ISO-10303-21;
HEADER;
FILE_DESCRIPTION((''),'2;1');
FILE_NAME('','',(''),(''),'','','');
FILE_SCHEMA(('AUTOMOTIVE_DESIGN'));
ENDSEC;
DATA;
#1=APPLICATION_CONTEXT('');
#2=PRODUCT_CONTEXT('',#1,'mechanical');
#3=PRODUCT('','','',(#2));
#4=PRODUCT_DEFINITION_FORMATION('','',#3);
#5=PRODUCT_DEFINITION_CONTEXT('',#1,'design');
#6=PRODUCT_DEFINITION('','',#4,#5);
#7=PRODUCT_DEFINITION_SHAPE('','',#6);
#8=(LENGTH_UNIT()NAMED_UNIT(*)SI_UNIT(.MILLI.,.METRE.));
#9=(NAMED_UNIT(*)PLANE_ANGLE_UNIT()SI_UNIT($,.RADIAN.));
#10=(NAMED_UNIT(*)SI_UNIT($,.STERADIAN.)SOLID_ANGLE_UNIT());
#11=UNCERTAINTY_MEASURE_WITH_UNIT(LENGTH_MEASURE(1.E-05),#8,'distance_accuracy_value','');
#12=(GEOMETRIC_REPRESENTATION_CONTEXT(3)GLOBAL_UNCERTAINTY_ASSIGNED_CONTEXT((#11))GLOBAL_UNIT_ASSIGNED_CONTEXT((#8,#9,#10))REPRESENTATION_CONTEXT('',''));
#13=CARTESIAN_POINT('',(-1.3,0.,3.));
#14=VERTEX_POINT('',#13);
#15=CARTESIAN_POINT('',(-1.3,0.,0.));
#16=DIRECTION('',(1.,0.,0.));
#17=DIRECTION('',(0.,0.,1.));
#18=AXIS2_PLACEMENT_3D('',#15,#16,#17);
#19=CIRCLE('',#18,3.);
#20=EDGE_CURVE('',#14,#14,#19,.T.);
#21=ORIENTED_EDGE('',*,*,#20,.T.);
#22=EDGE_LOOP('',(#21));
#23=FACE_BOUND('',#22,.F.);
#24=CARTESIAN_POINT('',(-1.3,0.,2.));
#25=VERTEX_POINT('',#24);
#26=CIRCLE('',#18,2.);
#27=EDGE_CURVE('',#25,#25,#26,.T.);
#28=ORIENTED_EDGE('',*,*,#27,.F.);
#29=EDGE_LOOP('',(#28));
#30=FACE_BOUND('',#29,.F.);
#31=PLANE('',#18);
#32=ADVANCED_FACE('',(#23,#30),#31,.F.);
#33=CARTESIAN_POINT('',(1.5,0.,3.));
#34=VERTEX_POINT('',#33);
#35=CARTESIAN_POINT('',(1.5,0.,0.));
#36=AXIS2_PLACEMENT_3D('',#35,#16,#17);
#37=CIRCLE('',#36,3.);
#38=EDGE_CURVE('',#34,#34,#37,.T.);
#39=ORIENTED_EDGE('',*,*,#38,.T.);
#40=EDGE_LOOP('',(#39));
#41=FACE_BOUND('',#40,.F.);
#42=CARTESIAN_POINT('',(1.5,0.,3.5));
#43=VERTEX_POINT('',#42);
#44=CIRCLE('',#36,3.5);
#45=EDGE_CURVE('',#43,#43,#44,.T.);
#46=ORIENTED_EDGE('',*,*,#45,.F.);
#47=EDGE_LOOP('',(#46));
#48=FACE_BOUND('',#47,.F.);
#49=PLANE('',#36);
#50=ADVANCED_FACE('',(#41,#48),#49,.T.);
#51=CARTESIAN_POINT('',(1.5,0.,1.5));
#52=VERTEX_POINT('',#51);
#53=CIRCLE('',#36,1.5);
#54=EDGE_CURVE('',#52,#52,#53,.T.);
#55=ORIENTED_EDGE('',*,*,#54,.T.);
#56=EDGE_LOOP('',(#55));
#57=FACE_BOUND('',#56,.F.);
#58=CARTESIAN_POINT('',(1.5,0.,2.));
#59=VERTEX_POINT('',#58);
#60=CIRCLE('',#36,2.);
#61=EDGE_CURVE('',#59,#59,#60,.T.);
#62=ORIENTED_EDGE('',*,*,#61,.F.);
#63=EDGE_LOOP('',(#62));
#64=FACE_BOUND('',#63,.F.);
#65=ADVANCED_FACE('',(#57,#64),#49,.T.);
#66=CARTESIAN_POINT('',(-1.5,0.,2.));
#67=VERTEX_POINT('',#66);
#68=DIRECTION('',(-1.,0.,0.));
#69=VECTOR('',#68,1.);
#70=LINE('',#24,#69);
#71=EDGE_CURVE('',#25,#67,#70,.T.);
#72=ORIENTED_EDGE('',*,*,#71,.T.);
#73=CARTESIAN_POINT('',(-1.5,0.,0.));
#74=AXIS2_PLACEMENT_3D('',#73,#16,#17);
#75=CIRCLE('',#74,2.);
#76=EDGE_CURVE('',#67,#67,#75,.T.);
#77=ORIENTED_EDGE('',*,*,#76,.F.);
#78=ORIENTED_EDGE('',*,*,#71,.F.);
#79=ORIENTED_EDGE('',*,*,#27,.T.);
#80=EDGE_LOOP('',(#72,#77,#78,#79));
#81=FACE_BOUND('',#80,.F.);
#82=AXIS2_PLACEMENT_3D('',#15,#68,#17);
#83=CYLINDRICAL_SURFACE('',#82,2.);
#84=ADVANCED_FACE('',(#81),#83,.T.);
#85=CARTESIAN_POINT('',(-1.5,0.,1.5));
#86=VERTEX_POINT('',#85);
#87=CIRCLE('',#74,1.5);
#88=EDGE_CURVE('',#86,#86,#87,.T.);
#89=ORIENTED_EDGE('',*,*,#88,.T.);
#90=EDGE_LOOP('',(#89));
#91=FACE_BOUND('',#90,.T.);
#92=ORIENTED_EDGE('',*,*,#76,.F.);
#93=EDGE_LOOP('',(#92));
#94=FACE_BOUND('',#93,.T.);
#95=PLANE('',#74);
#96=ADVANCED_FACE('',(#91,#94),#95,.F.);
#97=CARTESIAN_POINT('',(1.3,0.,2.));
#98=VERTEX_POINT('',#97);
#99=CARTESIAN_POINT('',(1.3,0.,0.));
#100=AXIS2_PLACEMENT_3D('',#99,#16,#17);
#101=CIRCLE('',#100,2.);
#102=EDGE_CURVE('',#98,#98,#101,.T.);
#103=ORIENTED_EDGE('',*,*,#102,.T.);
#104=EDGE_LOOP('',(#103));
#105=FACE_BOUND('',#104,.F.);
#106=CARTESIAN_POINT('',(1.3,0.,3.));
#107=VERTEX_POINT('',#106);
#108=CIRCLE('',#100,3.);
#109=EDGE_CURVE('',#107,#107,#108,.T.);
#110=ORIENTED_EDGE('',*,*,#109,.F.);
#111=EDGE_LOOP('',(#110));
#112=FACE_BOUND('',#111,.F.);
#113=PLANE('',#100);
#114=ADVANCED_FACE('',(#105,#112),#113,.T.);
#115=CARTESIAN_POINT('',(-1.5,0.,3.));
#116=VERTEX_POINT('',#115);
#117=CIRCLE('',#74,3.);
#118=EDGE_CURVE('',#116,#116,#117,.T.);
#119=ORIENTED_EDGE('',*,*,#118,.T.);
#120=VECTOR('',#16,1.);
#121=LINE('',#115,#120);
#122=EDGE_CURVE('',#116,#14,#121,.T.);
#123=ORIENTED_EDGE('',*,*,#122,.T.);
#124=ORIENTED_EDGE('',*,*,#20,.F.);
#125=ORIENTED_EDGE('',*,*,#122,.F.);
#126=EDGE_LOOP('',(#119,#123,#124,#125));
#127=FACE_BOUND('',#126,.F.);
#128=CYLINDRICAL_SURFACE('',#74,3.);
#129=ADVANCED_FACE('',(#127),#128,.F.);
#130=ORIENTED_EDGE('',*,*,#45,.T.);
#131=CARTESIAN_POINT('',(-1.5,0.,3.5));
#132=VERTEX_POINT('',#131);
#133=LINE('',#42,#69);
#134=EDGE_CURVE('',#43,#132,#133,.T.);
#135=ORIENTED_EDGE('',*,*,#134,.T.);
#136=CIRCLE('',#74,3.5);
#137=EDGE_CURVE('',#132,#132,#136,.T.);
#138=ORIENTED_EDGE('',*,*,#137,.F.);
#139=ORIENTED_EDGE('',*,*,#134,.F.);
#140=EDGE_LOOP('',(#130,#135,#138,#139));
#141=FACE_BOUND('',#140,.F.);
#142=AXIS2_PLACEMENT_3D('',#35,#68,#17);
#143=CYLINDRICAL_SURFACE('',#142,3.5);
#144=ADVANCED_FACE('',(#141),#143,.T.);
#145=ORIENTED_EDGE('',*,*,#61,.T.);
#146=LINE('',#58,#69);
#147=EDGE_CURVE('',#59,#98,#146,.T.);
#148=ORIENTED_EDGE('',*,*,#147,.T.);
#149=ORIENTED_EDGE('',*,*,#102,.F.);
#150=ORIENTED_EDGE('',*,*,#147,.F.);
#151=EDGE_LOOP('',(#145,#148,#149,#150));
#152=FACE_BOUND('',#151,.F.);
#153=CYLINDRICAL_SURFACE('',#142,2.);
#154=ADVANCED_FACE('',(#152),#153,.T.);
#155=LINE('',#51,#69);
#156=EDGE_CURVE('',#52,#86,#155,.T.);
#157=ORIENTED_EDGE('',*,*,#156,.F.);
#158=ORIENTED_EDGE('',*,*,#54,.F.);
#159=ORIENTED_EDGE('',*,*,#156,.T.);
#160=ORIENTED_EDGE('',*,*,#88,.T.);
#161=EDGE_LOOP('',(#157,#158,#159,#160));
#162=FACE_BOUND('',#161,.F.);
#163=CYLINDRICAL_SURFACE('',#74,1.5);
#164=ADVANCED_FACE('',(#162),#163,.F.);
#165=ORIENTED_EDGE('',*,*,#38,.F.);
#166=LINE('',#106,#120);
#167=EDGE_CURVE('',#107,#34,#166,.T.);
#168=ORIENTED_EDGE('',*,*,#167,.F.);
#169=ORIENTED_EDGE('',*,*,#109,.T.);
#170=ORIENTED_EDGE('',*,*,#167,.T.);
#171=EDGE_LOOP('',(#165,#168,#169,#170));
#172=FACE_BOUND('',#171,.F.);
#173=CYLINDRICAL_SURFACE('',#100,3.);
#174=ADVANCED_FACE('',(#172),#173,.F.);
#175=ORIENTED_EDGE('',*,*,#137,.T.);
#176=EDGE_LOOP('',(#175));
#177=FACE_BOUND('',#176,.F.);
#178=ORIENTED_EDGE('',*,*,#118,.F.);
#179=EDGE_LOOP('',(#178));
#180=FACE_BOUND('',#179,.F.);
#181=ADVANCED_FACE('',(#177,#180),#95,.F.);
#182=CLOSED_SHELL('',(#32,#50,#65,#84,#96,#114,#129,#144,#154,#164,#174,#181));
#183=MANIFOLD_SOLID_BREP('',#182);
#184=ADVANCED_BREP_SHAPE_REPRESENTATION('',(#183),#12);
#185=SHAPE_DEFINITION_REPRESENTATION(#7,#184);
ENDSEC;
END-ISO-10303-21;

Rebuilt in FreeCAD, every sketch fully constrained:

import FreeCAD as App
import Part
import Sketcher

V = App.Vector
Q = App.Units.Quantity

doc = App.newDocument("Part")
params = doc.addObject("Spreadsheet::Sheet", "Params")
for row, (alias, value) in enumerate([
    ("sketch1_width", "3 mm"),
    ("sketch1_width2", "0.2 mm"),
    ("sketch1_height", "0.5 mm"),
    ("sketch1_height2", "1 mm"),
    ("revolution_angle", "360 deg"),
], start=1):
    params.set(f"A{row}", alias)
    params.set(f"B{row}", "=" + value)
    params.setAlias(f"B{row}", alias)

body = doc.addObject("PartDesign::Body", "Body")

sketch1 = doc.addObject("Sketcher::SketchObject", "Sketch")
body.addObject(sketch1)
sketch1.AttachmentSupport = (doc.XZ_Plane, [""])
sketch1.MapMode = "FlatFace"
sketch1.addGeometry(Part.LineSegment(V(-1.5, 1.5, 0), V(-1.5, 2, 0)), False)
sketch1.addGeometry(Part.LineSegment(V(-1.5, 2, 0), V(-1.3, 2, 0)), False)
sketch1.addGeometry(Part.LineSegment(V(-1.3, 2, 0), V(-1.3, 3, 0)), False)
sketch1.addGeometry(Part.LineSegment(V(-1.3, 3, 0), V(-1.5, 3, 0)), False)
sketch1.addGeometry(Part.LineSegment(V(-1.5, 3, 0), V(-1.5, 3.5, 0)), False)
sketch1.addGeometry(Part.LineSegment(V(-1.5, 3.5, 0), V(1.5, 3.5, 0)), False)
sketch1.addGeometry(Part.LineSegment(V(1.5, 3.5, 0), V(1.5, 3, 0)), False)
sketch1.addGeometry(Part.LineSegment(V(1.5, 3, 0), V(1.3, 3, 0)), False)
sketch1.addGeometry(Part.LineSegment(V(1.3, 3, 0), V(1.3, 2, 0)), False)
sketch1.addGeometry(Part.LineSegment(V(1.3, 2, 0), V(1.5, 2, 0)), False)
sketch1.addGeometry(Part.LineSegment(V(1.5, 2, 0), V(1.5, 1.5, 0)), False)
sketch1.addGeometry(Part.LineSegment(V(1.5, 1.5, 0), V(-1.5, 1.5, 0)), False)
sketch1.addConstraint(Sketcher.Constraint("Coincident", 0, 2, 1, 1))
sketch1.addConstraint(Sketcher.Constraint("Coincident", 1, 2, 2, 1))
sketch1.addConstraint(Sketcher.Constraint("Coincident", 2, 2, 3, 1))
sketch1.addConstraint(Sketcher.Constraint("Coincident", 3, 2, 4, 1))
sketch1.addConstraint(Sketcher.Constraint("Coincident", 4, 2, 5, 1))
sketch1.addConstraint(Sketcher.Constraint("Coincident", 5, 2, 6, 1))
sketch1.addConstraint(Sketcher.Constraint("Coincident", 6, 2, 7, 1))
sketch1.addConstraint(Sketcher.Constraint("Coincident", 7, 2, 8, 1))
sketch1.addConstraint(Sketcher.Constraint("Coincident", 8, 2, 9, 1))
sketch1.addConstraint(Sketcher.Constraint("Coincident", 9, 2, 10, 1))
sketch1.addConstraint(Sketcher.Constraint("Coincident", 10, 2, 11, 1))
sketch1.addConstraint(Sketcher.Constraint("Coincident", 11, 2, 0, 1))
sketch1.addConstraint(Sketcher.Constraint("Vertical", 0))
sketch1.addConstraint(Sketcher.Constraint("Horizontal", 1))
sketch1.addConstraint(Sketcher.Constraint("Vertical", 2))
sketch1.addConstraint(Sketcher.Constraint("Horizontal", 3))
sketch1.addConstraint(Sketcher.Constraint("Vertical", 4))
sketch1.addConstraint(Sketcher.Constraint("Horizontal", 5))
sketch1.addConstraint(Sketcher.Constraint("Vertical", 6))
sketch1.addConstraint(Sketcher.Constraint("Horizontal", 7))
sketch1.addConstraint(Sketcher.Constraint("Vertical", 8))
sketch1.addConstraint(Sketcher.Constraint("Horizontal", 9))
sketch1.addConstraint(Sketcher.Constraint("Vertical", 10))
sketch1.addConstraint(Sketcher.Constraint("Horizontal", 11))
sketch1.addConstraint(Sketcher.Constraint("Symmetric", 3, 2, 6, 2, -2))
sketch1.addConstraint(Sketcher.Constraint("Symmetric", 1, 2, 8, 2, -2))
sketch1.addConstraint(Sketcher.Constraint("Vertical", 0, 2, 3, 2))
sketch1.addConstraint(Sketcher.Constraint("Vertical", 6, 2, 9, 2))
sketch1.addConstraint(Sketcher.Constraint("Equal", 0, 4))
sketch1.addConstraint(Sketcher.Constraint("DistanceX", 5, 1, 5, 2, Q("3 mm")))
sketch1.addConstraint(Sketcher.Constraint("DistanceX", 1, 1, 1, 2, Q("0.2 mm")))
sketch1.addConstraint(Sketcher.Constraint("DistanceY", 0, 1, 0, 2, Q("0.5 mm")))
sketch1.addConstraint(Sketcher.Constraint("DistanceY", -1, 1, 2, 2, Q("3 mm")))
sketch1.addConstraint(Sketcher.Constraint("DistanceY", 2, 1, 2, 2, Q("1 mm")))
sketch1.setExpression("Constraints[29]", "Params.sketch1_width")
sketch1.setExpression("Constraints[30]", "Params.sketch1_width2")
sketch1.setExpression("Constraints[31]", "Params.sketch1_height")
sketch1.setExpression("Constraints[33]", "Params.sketch1_height2")
revolution = doc.addObject("PartDesign::Revolution", "Revolution")
body.addObject(revolution)
revolution.Profile = sketch1
revolution.ReferenceAxis = (sketch1, ["H_Axis"])
revolution.setExpression("Angle", "Params.revolution_angle")

doc.recompute()
